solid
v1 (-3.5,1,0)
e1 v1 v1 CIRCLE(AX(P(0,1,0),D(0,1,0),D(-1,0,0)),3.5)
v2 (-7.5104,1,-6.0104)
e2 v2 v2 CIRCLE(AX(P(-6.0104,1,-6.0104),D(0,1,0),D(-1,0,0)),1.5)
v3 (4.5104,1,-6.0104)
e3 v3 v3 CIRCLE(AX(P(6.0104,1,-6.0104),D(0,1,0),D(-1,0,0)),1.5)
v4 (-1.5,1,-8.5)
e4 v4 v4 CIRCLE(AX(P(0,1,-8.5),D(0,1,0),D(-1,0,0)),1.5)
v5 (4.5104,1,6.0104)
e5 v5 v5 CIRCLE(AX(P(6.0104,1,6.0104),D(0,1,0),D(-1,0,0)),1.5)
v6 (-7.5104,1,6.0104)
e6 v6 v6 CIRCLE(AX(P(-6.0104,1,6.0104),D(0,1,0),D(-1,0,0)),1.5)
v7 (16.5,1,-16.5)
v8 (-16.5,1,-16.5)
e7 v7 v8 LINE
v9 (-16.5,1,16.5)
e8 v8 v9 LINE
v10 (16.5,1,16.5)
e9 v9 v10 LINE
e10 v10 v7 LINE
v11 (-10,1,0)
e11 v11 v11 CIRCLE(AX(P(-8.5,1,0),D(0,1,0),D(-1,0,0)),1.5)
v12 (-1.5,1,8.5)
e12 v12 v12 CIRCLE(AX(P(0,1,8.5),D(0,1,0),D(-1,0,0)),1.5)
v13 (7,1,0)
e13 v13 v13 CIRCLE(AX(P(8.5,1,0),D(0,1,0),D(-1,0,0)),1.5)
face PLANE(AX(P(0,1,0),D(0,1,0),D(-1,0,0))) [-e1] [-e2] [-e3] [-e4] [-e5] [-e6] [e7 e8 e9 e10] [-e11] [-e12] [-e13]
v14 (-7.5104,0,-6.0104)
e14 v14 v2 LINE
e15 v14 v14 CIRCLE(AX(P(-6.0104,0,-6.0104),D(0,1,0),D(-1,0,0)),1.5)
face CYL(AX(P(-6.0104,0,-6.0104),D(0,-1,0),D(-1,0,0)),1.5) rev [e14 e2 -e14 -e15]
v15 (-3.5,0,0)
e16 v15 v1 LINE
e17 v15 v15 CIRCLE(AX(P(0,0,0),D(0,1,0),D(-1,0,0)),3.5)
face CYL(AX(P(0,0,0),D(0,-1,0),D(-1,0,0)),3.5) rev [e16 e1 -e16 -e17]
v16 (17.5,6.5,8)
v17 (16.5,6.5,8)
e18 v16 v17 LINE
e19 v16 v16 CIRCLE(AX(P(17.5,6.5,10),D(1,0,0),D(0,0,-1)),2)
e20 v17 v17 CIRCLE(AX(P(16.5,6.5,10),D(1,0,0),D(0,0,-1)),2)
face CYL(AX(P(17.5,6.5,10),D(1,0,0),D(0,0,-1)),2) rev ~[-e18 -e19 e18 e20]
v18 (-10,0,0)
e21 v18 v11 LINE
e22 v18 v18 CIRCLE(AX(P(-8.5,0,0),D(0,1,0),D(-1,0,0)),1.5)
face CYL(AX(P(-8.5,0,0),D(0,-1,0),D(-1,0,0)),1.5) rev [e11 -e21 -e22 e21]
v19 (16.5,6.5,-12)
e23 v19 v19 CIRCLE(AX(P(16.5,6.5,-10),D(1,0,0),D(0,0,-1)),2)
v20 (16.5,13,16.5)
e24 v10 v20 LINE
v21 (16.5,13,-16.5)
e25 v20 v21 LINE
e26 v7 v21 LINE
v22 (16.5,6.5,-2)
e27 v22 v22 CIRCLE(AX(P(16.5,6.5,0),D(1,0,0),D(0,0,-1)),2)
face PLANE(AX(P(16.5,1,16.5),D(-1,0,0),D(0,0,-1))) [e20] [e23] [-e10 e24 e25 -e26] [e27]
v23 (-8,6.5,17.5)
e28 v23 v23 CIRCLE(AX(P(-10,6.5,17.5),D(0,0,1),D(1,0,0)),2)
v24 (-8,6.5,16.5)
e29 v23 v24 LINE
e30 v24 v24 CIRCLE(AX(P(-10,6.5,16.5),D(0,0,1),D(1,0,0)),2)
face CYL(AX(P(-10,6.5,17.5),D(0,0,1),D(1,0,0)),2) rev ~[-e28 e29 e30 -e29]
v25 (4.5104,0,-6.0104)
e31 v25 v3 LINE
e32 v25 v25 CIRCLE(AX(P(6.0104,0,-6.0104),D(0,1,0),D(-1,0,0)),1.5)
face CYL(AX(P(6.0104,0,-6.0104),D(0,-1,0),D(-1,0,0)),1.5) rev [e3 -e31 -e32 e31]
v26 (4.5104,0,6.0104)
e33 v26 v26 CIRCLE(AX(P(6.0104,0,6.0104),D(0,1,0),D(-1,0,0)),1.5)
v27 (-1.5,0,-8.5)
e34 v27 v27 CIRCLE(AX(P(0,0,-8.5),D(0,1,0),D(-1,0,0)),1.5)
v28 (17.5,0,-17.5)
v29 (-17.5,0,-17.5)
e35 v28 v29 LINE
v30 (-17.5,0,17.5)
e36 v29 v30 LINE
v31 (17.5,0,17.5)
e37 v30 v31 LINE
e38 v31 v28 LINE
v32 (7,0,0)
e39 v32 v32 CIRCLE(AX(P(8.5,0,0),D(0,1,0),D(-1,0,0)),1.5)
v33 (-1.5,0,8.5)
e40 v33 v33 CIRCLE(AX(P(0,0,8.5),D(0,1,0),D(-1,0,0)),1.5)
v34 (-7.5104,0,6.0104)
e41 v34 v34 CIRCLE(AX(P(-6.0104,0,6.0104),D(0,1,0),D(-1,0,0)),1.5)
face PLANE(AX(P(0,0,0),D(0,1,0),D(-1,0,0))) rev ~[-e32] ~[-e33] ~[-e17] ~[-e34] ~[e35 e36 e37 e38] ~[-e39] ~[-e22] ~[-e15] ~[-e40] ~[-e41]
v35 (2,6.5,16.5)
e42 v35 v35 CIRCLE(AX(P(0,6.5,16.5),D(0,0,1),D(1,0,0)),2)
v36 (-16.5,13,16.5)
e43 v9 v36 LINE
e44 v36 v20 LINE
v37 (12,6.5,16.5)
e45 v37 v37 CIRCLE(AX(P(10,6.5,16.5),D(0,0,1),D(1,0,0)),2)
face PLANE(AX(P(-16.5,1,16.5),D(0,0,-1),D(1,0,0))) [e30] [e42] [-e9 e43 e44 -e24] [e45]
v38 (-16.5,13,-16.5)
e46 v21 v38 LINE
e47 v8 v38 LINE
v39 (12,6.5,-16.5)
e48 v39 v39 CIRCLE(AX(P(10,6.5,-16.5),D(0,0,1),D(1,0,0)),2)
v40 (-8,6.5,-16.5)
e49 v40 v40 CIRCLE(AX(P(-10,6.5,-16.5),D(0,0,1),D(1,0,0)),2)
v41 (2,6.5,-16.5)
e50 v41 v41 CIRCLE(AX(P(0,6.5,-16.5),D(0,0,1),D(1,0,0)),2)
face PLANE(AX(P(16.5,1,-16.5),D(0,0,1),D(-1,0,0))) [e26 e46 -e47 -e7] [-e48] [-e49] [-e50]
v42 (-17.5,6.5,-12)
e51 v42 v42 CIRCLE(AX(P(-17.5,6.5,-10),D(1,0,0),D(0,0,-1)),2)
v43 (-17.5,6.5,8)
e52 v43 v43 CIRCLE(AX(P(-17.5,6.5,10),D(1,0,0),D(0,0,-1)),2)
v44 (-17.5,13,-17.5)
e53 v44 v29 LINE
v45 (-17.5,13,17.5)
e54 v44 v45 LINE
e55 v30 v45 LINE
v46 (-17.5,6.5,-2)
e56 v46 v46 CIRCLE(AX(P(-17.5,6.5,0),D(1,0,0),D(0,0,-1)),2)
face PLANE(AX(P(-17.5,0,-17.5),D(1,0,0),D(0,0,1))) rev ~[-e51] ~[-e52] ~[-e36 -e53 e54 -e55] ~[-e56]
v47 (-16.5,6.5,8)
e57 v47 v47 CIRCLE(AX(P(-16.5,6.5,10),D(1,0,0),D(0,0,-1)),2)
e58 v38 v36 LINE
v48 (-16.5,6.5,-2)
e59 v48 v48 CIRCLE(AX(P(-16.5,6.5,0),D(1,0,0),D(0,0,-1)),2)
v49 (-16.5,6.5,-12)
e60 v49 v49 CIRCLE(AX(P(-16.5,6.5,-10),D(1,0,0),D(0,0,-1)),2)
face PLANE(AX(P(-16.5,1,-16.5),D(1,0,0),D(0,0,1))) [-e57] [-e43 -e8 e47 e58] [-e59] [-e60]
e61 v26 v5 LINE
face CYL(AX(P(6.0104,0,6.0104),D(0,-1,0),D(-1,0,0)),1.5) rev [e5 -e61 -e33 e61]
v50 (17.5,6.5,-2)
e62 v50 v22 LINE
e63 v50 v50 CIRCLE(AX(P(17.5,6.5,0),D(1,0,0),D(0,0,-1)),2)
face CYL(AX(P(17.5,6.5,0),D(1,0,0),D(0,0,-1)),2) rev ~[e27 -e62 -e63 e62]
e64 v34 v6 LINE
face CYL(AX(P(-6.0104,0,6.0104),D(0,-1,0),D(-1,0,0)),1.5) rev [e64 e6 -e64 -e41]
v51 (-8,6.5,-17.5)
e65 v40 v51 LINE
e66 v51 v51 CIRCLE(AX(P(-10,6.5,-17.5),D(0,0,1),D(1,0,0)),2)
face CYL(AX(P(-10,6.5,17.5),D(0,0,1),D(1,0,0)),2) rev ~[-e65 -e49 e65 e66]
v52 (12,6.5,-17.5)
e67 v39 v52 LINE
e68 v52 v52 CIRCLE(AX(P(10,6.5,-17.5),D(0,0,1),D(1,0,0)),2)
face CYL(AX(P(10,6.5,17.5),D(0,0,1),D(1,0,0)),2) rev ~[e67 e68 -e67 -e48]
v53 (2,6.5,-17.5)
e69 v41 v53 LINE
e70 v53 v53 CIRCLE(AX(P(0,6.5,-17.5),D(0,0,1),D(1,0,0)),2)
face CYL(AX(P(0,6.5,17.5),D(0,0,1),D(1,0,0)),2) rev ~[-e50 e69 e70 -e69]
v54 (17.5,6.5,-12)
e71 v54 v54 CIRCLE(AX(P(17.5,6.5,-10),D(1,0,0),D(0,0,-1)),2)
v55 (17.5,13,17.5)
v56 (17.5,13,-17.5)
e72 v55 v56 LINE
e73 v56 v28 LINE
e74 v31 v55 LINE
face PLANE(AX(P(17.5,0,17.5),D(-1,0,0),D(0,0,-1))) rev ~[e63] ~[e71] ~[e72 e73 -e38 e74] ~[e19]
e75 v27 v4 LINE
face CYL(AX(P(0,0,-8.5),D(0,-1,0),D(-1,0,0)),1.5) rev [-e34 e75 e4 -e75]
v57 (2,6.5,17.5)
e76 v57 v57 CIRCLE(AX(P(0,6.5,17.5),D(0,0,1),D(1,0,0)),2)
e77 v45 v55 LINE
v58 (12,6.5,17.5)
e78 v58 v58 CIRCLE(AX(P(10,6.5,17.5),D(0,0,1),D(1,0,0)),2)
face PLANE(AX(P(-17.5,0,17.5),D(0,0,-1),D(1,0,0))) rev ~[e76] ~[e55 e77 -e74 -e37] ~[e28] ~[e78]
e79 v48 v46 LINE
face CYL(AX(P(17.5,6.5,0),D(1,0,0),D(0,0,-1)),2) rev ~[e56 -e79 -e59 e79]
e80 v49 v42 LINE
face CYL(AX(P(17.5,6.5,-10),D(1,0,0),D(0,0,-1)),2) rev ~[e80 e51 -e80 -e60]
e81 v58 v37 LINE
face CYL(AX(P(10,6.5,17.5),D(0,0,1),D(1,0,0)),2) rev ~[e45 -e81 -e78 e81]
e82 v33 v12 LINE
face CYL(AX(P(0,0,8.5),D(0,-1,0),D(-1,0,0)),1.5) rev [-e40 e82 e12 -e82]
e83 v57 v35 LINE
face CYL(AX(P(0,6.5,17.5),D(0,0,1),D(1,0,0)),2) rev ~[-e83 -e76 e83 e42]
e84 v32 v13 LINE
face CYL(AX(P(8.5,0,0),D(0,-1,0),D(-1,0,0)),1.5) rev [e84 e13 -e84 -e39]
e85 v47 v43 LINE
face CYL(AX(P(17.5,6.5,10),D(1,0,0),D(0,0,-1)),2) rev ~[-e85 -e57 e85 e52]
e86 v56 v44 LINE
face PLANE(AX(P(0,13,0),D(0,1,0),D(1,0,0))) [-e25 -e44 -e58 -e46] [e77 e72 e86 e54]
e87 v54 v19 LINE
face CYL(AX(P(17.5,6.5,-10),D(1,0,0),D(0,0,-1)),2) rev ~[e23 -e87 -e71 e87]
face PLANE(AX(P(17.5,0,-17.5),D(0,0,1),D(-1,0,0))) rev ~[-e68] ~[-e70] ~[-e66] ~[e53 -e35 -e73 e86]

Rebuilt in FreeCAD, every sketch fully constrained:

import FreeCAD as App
import Part
import Sketcher
Q = App.Units.Quantity


def add_polygon(sketch, points):
    """Adds a closed chain of lines whose ends are joined by coincident constraints."""
    first, n = sketch.GeometryCount, len(points)
    for a, b in zip(points, points[1:] + points[:1]):
        sketch.addGeometry(Part.LineSegment(App.Vector(*a, 0), App.Vector(*b, 0)), False)
    for i in range(n):
        sketch.addConstraint(Sketcher.Constraint("Coincident", first + i, 2, first + (i + 1) % n, 1))

doc = App.newDocument("Part")
body = doc.addObject("PartDesign::Body", "Body")

# Sketch on XZ plane
sketch1 = body.newObject("Sketcher::SketchObject", "Sketch")
sketch1.AttachmentSupport = (doc.getObject("XZ_Plane"), [""])
sketch1.MapMode = "FlatFace"
add_polygon(sketch1, [(-17.5, -17.5), (-17.5, 17.5), (17.5, 17.5), (17.5, -17.5)])  # lines 0-3
sketch1.addGeometry(Part.Circle(App.Vector(6, -6, 0), App.Vector(0, 0, 1), 1.5), False)  # 4
sketch1.addGeometry(Part.Circle(App.Vector(0, -8.5, 0), App.Vector(0, 0, 1), 1.5), False)  # 5
sketch1.addGeometry(Part.Circle(App.Vector(-6, -6, 0), App.Vector(0, 0, 1), 1.5), False)  # 6
sketch1.addGeometry(Part.Circle(App.Vector(8.5, 0, 0), App.Vector(0, 0, 1), 1.5), False)  # 7
sketch1.addGeometry(Part.Circle(App.Vector(6, 6, 0), App.Vector(0, 0, 1), 1.5), False)  # 8
sketch1.addGeometry(Part.Circle(App.Vector(0, 0, 0), App.Vector(0, 0, 1), 3.5), False)  # 9
sketch1.addGeometry(Part.Circle(App.Vector(-8.5, 0, 0), App.Vector(0, 0, 1), 1.5), False)  # 10
sketch1.addGeometry(Part.Circle(App.Vector(0, 8.5, 0), App.Vector(0, 0, 1), 1.5), False)  # 11
sketch1.addGeometry(Part.Circle(App.Vector(-6, 6, 0), App.Vector(0, 0, 1), 1.5), False)  # 12
sketch1.addConstraint([
    Sketcher.Constraint("Vertical", 0),
    Sketcher.Constraint("Horizontal", 1),
    Sketcher.Constraint("Vertical", 2),
    Sketcher.Constraint("Horizontal", 3),
    Sketcher.Constraint("Coincident", 9, 3, -1, 1),
    Sketcher.Constraint("Equal", 4, 5),
    Sketcher.Constraint("Equal", 5, 6),
    Sketcher.Constraint("Equal", 6, 7),
    Sketcher.Constraint("Equal", 7, 8),
    Sketcher.Constraint("Equal", 8, 10),
    Sketcher.Constraint("Equal", 10, 11),
    Sketcher.Constraint("Equal", 11, 12),
    Sketcher.Constraint("Symmetric", 6, 3, 8, 3, -1, 1),
    Sketcher.Constraint("Symmetric", 7, 3, 10, 3, -1, 1),
    Sketcher.Constraint("Symmetric", 5, 3, 11, 3, -1, 1),
    Sketcher.Constraint("Symmetric", 4, 3, 12, 3, -1, 1),
    Sketcher.Constraint("Symmetric", 0, 2, 2, 2, -1, 1),
    Sketcher.Constraint("Symmetric", 4, 3, 6, 3, -2),
    Sketcher.Constraint("PointOnObject", 5, 3, -2),
    Sketcher.Constraint("PointOnObject", 7, 3, -1),
    Sketcher.Constraint("Equal", 3, 0),
    Sketcher.Constraint("Diameter", 4, Q("3 mm")),
    Sketcher.Constraint("Diameter", 9, Q("7 mm")),
    Sketcher.Constraint("DistanceX", 1, 1, 1, 2, Q("35 mm")),
    Sketcher.Constraint("DistanceY", 5, 3, -1, 1, Q("8.5 mm")),
    Sketcher.Constraint("DistanceX", -1, 1, 7, 3, Q("8.5 mm")),
    Sketcher.Constraint("DistanceX", -1, 1, 4, 3, Q("6.0104 mm")),
    Sketcher.Constraint("DistanceY", 4, 3, -1, 1, Q("6.0104 mm")),
])
pad1 = body.newObject("PartDesign::Pad", "Pad")
pad1.Profile = sketch1
pad1.Length = 1
pad1.Reversed = True

# Sketch on XZ plane
sketch2 = body.newObject("Sketcher::SketchObject", "Sketch001")
sketch2.AttachmentSupport = (doc.getObject("XZ_Plane"), [""])
sketch2.MapMode = "FlatFace"
sketch2.AttachmentOffset = App.Placement(App.Vector(0, 0, -1), App.Rotation())
add_polygon(sketch2, [(-18, -18), (-18, 18), (18, 18), (18, -18)])  # lines 0-3
add_polygon(sketch2, [(16, 16), (-16, 16), (-16, -16), (16, -16)])  # lines 4-7
sketch2.addConstraint([
    Sketcher.Constraint("Vertical", 0),
    Sketcher.Constraint("Horizontal", 1),
    Sketcher.Constraint("Vertical", 2),
    Sketcher.Constraint("Horizontal", 3),
    Sketcher.Constraint("Horizontal", 4),
    Sketcher.Constraint("Vertical", 5),
    Sketcher.Constraint("Horizontal", 6),
    Sketcher.Constraint("Vertical", 7),
    Sketcher.Constraint("Symmetric", 0, 2, 2, 2, -1, 1),
    Sketcher.Constraint("Symmetric", 4, 2, 6, 2, -1, 1),
    Sketcher.Constraint("Equal", 3, 0),
    Sketcher.Constraint("Equal", 6, 5),
    Sketcher.Constraint("DistanceX", 0, 2, 4, 2, Q("1 mm")),
    Sketcher.Constraint("DistanceX", 1, 1, 1, 2, Q("35 mm")),
])
pad2 = body.newObject("PartDesign::Pad", "Pad001")
pad2.Profile = sketch2
pad2.Length = 12
pad2.Reversed = True

# Sketch on YZ plane
sketch3 = body.newObject("Sketcher::SketchObject", "Sketch002")
sketch3.AttachmentSupport = (doc.getObject("YZ_Plane"), [""])
sketch3.MapMode = "FlatFace"
sketch3.AttachmentOffset = App.Placement(App.Vector(0, 0, 17.5), App.Rotation())
sketch3.addGeometry([
    Part.Circle(App.Vector(6.5, 0, 0), App.Vector(0, 0, 1), 2),
    Part.Circle(App.Vector(6.5, -10, 0), App.Vector(0, 0, 1), 2),
    Part.Circle(App.Vector(6.5, 10, 0), App.Vector(0, 0, 1), 2),
], False)
sketch3.addConstraint([
    Sketcher.Constraint("Equal", 0, 1),
    Sketcher.Constraint("Equal", 1, 2),
    Sketcher.Constraint("Symmetric", 1, 3, 2, 3, -1),
    Sketcher.Constraint("PointOnObject", 0, 3, -1),
    Sketcher.Constraint("Vertical", 0, 3, 1, 3),
    Sketcher.Constraint("Diameter", 0, Q("4 mm")),
    Sketcher.Constraint("DistanceY", 1, 3, -1, 1, Q("10 mm")),
    Sketcher.Constraint("DistanceX", -1, 1, 0, 3, Q("6.5 mm")),
])
pocket1 = body.newObject("PartDesign::Pocket", "Pocket")
pocket1.Profile = sketch3
pocket1.Length = 40

# Sketch on XY plane
sketch4 = body.newObject("Sketcher::SketchObject", "Sketch003")
sketch4.AttachmentSupport = (doc.getObject("XY_Plane"), [""])
sketch4.MapMode = "FlatFace"
sketch4.AttachmentOffset = App.Placement(App.Vector(0, 0, 17.5), App.Rotation())
sketch4.addGeometry([
    Part.Circle(App.Vector(0, 6.5, 0), App.Vector(0, 0, 1), 2),
    Part.Circle(App.Vector(10, 6.5, 0), App.Vector(0, 0, 1), 2),
    Part.Circle(App.Vector(-10, 6.5, 0), App.Vector(0, 0, 1), 2),
], False)
sketch4.addConstraint([
    Sketcher.Constraint("Equal", 0, 1),
    Sketcher.Constraint("Equal", 1, 2),
    Sketcher.Constraint("Symmetric", 1, 3, 2, 3, -2),
    Sketcher.Constraint("PointOnObject", 0, 3, -2),
    Sketcher.Constraint("Horizontal", 0, 3, 1, 3),
    Sketcher.Constraint("Diameter", 0, Q("4 mm")),
    Sketcher.Constraint("DistanceX", -1, 1, 1, 3, Q("10 mm")),
    Sketcher.Constraint("DistanceY", -1, 1, 0, 3, Q("6.5 mm")),
])
pocket2 = body.newObject("PartDesign::Pocket", "Pocket001")
pocket2.Profile = sketch4
pocket2.Length = 40

doc.recompute()
